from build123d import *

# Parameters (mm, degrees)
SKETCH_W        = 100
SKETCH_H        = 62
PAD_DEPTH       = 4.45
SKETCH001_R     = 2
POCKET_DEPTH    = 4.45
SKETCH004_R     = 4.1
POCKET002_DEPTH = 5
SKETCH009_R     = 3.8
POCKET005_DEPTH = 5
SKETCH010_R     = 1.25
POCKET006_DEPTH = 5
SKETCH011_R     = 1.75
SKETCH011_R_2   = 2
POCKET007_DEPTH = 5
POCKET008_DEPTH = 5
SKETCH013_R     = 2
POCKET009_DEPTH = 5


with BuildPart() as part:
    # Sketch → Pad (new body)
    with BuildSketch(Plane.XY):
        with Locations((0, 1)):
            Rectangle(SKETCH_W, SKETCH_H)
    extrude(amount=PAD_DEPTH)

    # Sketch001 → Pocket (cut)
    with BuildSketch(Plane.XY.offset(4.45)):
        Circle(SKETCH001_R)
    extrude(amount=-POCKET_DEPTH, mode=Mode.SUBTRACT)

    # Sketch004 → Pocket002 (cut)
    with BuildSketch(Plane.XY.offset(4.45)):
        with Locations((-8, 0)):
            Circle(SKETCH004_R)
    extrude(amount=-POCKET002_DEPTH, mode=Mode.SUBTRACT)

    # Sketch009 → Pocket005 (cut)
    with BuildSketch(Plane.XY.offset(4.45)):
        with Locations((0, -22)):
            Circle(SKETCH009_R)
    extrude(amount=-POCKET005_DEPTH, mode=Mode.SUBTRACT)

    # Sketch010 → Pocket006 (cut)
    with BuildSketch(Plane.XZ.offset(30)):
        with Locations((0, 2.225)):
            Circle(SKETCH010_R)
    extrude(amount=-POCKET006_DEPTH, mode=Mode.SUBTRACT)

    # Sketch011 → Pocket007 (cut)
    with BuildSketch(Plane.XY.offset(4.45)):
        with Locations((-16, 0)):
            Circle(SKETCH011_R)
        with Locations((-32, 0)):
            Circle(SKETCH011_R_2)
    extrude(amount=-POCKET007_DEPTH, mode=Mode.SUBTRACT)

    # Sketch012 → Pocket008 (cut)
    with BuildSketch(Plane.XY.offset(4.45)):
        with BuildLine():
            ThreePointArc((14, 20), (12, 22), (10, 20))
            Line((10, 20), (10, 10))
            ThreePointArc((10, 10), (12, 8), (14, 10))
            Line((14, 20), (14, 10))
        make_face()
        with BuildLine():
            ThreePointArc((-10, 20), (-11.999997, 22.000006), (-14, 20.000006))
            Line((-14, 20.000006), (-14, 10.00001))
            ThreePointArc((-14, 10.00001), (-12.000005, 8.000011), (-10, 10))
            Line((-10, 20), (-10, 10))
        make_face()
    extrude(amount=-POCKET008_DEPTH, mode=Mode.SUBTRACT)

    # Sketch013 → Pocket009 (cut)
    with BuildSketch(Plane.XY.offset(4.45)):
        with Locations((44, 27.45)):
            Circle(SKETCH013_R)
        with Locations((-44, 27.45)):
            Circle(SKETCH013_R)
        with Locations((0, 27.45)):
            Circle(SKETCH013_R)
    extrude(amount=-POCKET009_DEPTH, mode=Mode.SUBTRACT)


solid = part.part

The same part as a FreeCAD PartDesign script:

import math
import FreeCAD as App
import Part
import Sketcher

V = App.Vector
Q = App.Units.Quantity


def add_polygon(sketch, points):
    """Adds a closed chain of lines whose ends are joined by coincident constraints."""
    first, n = sketch.GeometryCount, len(points)
    for a, b in zip(points, points[1:] + points[:1]):
        sketch.addGeometry(Part.LineSegment(App.Vector(*a, 0), App.Vector(*b, 0)), False)
    for i in range(n):
        sketch.addConstraint(Sketcher.Constraint("Coincident", first + i, 2, first + (i + 1) % n, 1))

doc = App.newDocument("Part")
body = doc.addObject("PartDesign::Body", "Body")

sketch1 = body.newObject("Sketcher::SketchObject", "Sketch")
sketch1.AttachmentSupport = (doc.getObject("XY_Plane"), [""])
sketch1.MapMode = "FlatFace"
add_polygon(sketch1, [(-50, 32), (-50, -30), (50, -30), (50, 32)])
sketch1.addConstraint([
    Sketcher.Constraint("Vertical", 0),
    Sketcher.Constraint("Horizontal", 1),
    Sketcher.Constraint("Vertical", 2),
    Sketcher.Constraint("Horizontal", 3),
    Sketcher.Constraint("DistanceX", 1, 1, 1, 2, Q("100 mm")),
    Sketcher.Constraint("DistanceY", 0, 2, 0, 1, Q("62 mm")),
    Sketcher.Constraint("DistanceX", 0, 2, -1, 1, Q("50 mm")),
    Sketcher.Constraint("DistanceY", 0, 2, -1, 1, Q("30 mm")),
])
pad1 = body.newObject("PartDesign::Pad", "Pad")
pad1.Profile = sketch1
pad1.Length = 4.45

sketch2 = body.newObject("Sketcher::SketchObject", "Sketch001")
sketch2.AttachmentSupport = (doc.getObject("XY_Plane"), [""])
sketch2.MapMode = "FlatFace"
sketch2.AttachmentOffset = App.Placement(V(0, 0, 4.45), App.Rotation())
sketch2.addGeometry(Part.Circle(V(0, 0, 0), V(0, 0, 1), 2), False)
sketch2.addConstraint([
    Sketcher.Constraint("Coincident", 0, 3, -1, 1),
    Sketcher.Constraint("Diameter", 0, Q("4 mm")),
])
pocket1 = body.newObject("PartDesign::Pocket", "Pocket")
pocket1.Profile = sketch2
pocket1.Length = 4.45

sketch3 = body.newObject("Sketcher::SketchObject", "Sketch002")
sketch3.AttachmentSupport = (doc.getObject("XY_Plane"), [""])
sketch3.MapMode = "FlatFace"
sketch3.AttachmentOffset = App.Placement(V(0, 0, 4.45), App.Rotation())
sketch3.addGeometry(Part.Circle(V(-8, 0, 0), V(0, 0, 1), 4.1), False)
sketch3.addConstraint([
    Sketcher.Constraint("PointOnObject", 0, 3, -1),
    Sketcher.Constraint("Diameter", 0, Q("8.2 mm")),
    Sketcher.Constraint("DistanceX", 0, 3, -1, 1, Q("8 mm")),
])
pocket2 = body.newObject("PartDesign::Pocket", "Pocket001")
pocket2.Profile = sketch3
pocket2.Length = 5

sketch4 = body.newObject("Sketcher::SketchObject", "Sketch003")
sketch4.AttachmentSupport = (doc.getObject("XY_Plane"), [""])
sketch4.MapMode = "FlatFace"
sketch4.AttachmentOffset = App.Placement(V(0, 0, 4.45), App.Rotation())
sketch4.addGeometry(Part.Circle(V(0, -22, 0), V(0, 0, 1), 3.8), False)
sketch4.addConstraint([
    Sketcher.Constraint("PointOnObject", 0, 3, -2),
    Sketcher.Constraint("Diameter", 0, Q("7.6 mm")),
    Sketcher.Constraint("DistanceY", 0, 3, -1, 1, Q("22 mm")),
])
pocket3 = body.newObject("PartDesign::Pocket", "Pocket002")
pocket3.Profile = sketch4
pocket3.Length = 5

sketch5 = body.newObject("Sketcher::SketchObject", "Sketch004")
sketch5.AttachmentSupport = (doc.getObject("XZ_Plane"), [""])
sketch5.MapMode = "FlatFace"
sketch5.AttachmentOffset = App.Placement(V(0, 0, 30), App.Rotation())
sketch5.addGeometry(Part.Circle(V(0, 2.225, 0), V(0, 0, 1), 1.25), False)
sketch5.addConstraint([
    Sketcher.Constraint("PointOnObject", 0, 3, -2),
    Sketcher.Constraint("Diameter", 0, Q("2.5 mm")),
    Sketcher.Constraint("DistanceY", -1, 1, 0, 3, Q("2.225 mm")),
])
pocket4 = body.newObject("PartDesign::Pocket", "Pocket003")
pocket4.Profile = sketch5
pocket4.Length = 5

sketch6 = body.newObject("Sketcher::SketchObject", "Sketch005")
sketch6.AttachmentSupport = (doc.getObject("XY_Plane"), [""])
sketch6.MapMode = "FlatFace"
sketch6.AttachmentOffset = App.Placement(V(0, 0, 4.45), App.Rotation())
sketch6.addGeometry([
    Part.Circle(V(-16, 0, 0), V(0, 0, 1), 1.75),
    Part.Circle(V(-32, 0, 0), V(0, 0, 1), 2),
], False)
sketch6.addConstraint([
    Sketcher.Constraint("PointOnObject", 0, 3, -1),
    Sketcher.Constraint("PointOnObject", 1, 3, -1),
    Sketcher.Constraint("Diameter", 1, Q("4 mm")),
    Sketcher.Constraint("Diameter", 0, Q("3.5 mm")),
    Sketcher.Constraint("DistanceX", 0, 3, -1, 1, Q("16 mm")),
    Sketcher.Constraint("DistanceX", 1, 3, -1, 1, Q("32 mm")),
])
pocket5 = body.newObject("PartDesign::Pocket", "Pocket004")
pocket5.Profile = sketch6
pocket5.Length = 5

sketch7 = body.newObject("Sketcher::SketchObject", "Sketch006")
sketch7.AttachmentSupport = (doc.getObject("XY_Plane"), [""])
sketch7.MapMode = "FlatFace"
sketch7.AttachmentOffset = App.Placement(V(0, 0, 4.45), App.Rotation())
sketch7.addGeometry([
    Part.ArcOfCircle(Part.Circle(V(12, 20, 0), V(0, 0, 1), 2), math.radians(0), math.radians(180)),
    Part.LineSegment(V(10, 20, 0), V(10, 10, 0)),
    Part.ArcOfCircle(Part.Circle(V(12, 10, 0), V(0, 0, 1), 2), math.radians(180), math.radians(360)),
    Part.LineSegment(V(14, 10, 0), V(14, 20, 0)),
    Part.ArcOfCircle(Part.Circle(V(-12, 20.000006, 0), V(0, 0, 1), 2), math.radians(-0.000172), math.radians(180)),
    Part.LineSegment(V(-14, 20.000006, 0), V(-14, 10.00001, 0)),
    Part.ArcOfCircle(Part.Circle(V(-12, 10.000011, 0), V(0, 0, 1), 2), math.radians(-179.999971), math.radians(-0.000315)),
    Part.LineSegment(V(-10, 10, 0), V(-10, 20, 0)),
], False)
sketch7.addConstraint([
    Sketcher.Constraint("Tangent", 0, 2, 1, 1),
    Sketcher.Constraint("Tangent", 1, 2, 2, 1),
    Sketcher.Constraint("Tangent", 2, 2, 3, 1),
    Sketcher.Constraint("Tangent", 3, 2, 0, 1),
    Sketcher.Constraint("Tangent", 4, 2, 5, 1),
    Sketcher.Constraint("Tangent", 5, 2, 6, 1),
    Sketcher.Constraint("Coincident", 6, 2, 7, 1),
    Sketcher.Constraint("Coincident", 7, 2, 4, 1),
    Sketcher.Constraint("Vertical", 1),
    Sketcher.Constraint("Vertical", 3),
    Sketcher.Constraint("Vertical", 5),
    Sketcher.Constraint("Vertical", 7),
    Sketcher.Constraint("Equal", 2, 4),
    Sketcher.Constraint("Symmetric", 0, 3, 4, 3, -2),
    Sketcher.Constraint("Horizontal", 2, 2, 6, 2),
    Sketcher.Constraint("Horizontal", 3, 2, 7, 2),
    Sketcher.Constraint("Radius", 0, Q("2 mm")),
    Sketcher.Constraint("DistanceY", 1, 2, 1, 1, Q("10 mm")),
    Sketcher.Constraint("DistanceX", -1, 1, 0, 3, Q("12 mm")),
    Sketcher.Constraint("DistanceY", -1, 1, 0, 3, Q("20 mm")),
    Sketcher.Constraint("DistanceY", 5, 2, 5, 1, Q("9.999996 mm")),
])
pocket6 = body.newObject("PartDesign::Pocket", "Pocket005")
pocket6.Profile = sketch7
pocket6.Length = 5

sketch8 = body.newObject("Sketcher::SketchObject", "Sketch007")
sketch8.AttachmentSupport = (doc.getObject("XY_Plane"), [""])
sketch8.MapMode = "FlatFace"
sketch8.AttachmentOffset = App.Placement(V(0, 0, 4.45), App.Rotation())
sketch8.addGeometry([
    Part.Circle(V(44, 27.45, 0), V(0, 0, 1), 2),
    Part.Circle(V(-44, 27.45, 0), V(0, 0, 1), 2),
    Part.Circle(V(0, 27.45, 0), V(0, 0, 1), 2),
], False)
sketch8.addConstraint([
    Sketcher.Constraint("Equal", 0, 1),
    Sketcher.Constraint("Equal", 1, 2),
    Sketcher.Constraint("Symmetric", 0, 3, 1, 3, -2),
    Sketcher.Constraint("PointOnObject", 2, 3, -2),
    Sketcher.Constraint("Horizontal", 1, 3, 2, 3),
    Sketcher.Constraint("Diameter", 0, Q("4 mm")),
    Sketcher.Constraint("DistanceX", -1, 1, 0, 3, Q("44 mm")),
    Sketcher.Constraint("DistanceY", -1, 1, 0, 3, Q("27.45 mm")),
])
pocket7 = body.newObject("PartDesign::Pocket", "Pocket006")
pocket7.Profile = sketch8
pocket7.Length = 5

doc.recompute()
